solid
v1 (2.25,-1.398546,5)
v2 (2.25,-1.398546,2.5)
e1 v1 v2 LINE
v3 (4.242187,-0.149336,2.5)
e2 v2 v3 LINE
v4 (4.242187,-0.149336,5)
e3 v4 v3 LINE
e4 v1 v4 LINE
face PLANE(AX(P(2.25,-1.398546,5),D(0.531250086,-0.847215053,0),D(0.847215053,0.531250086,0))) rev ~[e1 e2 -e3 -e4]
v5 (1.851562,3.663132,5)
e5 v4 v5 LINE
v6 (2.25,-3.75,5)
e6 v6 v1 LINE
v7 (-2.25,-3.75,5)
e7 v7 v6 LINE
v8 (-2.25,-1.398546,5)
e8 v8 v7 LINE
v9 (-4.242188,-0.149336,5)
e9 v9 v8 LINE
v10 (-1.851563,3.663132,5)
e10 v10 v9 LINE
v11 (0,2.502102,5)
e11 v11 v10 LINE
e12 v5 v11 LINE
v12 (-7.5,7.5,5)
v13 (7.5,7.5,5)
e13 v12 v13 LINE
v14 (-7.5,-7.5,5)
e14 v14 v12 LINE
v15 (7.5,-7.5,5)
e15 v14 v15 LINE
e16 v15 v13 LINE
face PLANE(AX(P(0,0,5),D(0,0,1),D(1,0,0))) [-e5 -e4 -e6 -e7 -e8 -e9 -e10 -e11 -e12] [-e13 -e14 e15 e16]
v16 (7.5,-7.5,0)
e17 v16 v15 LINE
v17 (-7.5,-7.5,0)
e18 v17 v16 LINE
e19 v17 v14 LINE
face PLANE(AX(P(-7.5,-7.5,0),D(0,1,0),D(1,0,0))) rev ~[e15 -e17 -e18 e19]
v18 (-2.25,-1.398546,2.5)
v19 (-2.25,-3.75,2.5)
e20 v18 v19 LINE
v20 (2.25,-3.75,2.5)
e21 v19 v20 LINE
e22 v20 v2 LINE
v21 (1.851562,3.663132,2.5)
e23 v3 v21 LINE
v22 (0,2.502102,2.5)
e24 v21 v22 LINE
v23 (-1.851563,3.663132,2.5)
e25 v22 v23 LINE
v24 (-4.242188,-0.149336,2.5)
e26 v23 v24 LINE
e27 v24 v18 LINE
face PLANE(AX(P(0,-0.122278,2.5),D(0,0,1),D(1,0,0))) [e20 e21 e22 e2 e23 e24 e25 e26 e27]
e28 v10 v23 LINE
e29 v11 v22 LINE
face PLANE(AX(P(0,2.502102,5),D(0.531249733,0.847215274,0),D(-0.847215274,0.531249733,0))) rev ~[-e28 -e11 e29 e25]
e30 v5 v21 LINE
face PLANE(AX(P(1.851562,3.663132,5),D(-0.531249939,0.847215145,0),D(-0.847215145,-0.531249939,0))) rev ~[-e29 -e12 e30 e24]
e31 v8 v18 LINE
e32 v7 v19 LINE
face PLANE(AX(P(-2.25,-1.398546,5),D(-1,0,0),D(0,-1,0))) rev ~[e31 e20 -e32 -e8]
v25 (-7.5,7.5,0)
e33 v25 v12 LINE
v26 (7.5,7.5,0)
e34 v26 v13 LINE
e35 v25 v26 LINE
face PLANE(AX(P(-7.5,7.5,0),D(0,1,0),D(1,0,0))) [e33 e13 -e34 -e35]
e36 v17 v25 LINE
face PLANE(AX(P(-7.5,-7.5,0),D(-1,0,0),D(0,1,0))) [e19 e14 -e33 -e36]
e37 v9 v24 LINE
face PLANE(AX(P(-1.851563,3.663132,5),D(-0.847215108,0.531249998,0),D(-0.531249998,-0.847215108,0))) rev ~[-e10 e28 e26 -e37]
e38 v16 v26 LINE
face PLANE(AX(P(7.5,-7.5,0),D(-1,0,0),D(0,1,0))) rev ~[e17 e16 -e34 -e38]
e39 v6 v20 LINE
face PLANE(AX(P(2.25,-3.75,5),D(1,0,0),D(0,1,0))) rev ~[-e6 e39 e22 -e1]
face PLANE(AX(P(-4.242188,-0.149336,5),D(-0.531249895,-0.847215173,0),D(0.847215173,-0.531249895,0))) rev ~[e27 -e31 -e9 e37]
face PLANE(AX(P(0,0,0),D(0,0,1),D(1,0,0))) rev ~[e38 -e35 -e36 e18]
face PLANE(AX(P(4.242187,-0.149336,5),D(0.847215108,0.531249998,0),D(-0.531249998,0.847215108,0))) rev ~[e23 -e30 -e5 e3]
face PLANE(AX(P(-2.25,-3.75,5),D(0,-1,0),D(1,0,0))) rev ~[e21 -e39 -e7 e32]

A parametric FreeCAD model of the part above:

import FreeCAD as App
import Part
import Sketcher
Q = App.Units.Quantity

doc = App.newDocument("Part")
body = doc.addObject("PartDesign::Body", "Body")

sketch1 = body.newObject("Sketcher::SketchObject", "Sketch")
sketch1.AttachmentSupport = (doc.getObject("XY_Plane"), [""])
sketch1.MapMode = "FlatFace"
sketch1.addGeometry(Part.LineSegment(App.Vector(-7.5, 7.5, 0), App.Vector(-7.5, -7.5, 0)), False)
sketch1.addGeometry(Part.LineSegment(App.Vector(-7.5, -7.5, 0), App.Vector(7.5, -7.5, 0)), False)
sketch1.addGeometry(Part.LineSegment(App.Vector(7.5, -7.5, 0), App.Vector(7.5, 7.5, 0)), False)
sketch1.addGeometry(Part.LineSegment(App.Vector(7.5, 7.5, 0), App.Vector(-7.5, 7.5, 0)), False)
sketch1.addConstraint(Sketcher.Constraint("Coincident", 0, 2, 1, 1))
sketch1.addConstraint(Sketcher.Constraint("Coincident", 1, 2, 2, 1))
sketch1.addConstraint(Sketcher.Constraint("Coincident", 2, 2, 3, 1))
sketch1.addConstraint(Sketcher.Constraint("Coincident", 3, 2, 0, 1))
sketch1.addConstraint(Sketcher.Constraint("Vertical", 0))
sketch1.addConstraint(Sketcher.Constraint("Horizontal", 1))
sketch1.addConstraint(Sketcher.Constraint("Vertical", 2))
sketch1.addConstraint(Sketcher.Constraint("Horizontal", 3))
sketch1.addConstraint(Sketcher.Constraint("Symmetric", 0, 2, 2, 2, -1, 1))
sketch1.addConstraint(Sketcher.Constraint("Equal", 3, 0))
sketch1.addConstraint(Sketcher.Constraint("DistanceX", 1, 1, 1, 2, Q("15 mm")))
pad1 = body.newObject("PartDesign::Pad", "Pad")
pad1.Profile = sketch1
pad1.Length = 5

sketch2 = body.newObject("Sketcher::SketchObject", "Sketch001")
sketch2.AttachmentSupport = (doc.getObject("XY_Plane"), [""])
sketch2.MapMode = "FlatFace"
sketch2.AttachmentOffset = App.Placement(App.Vector(0, 0, 5), App.Rotation())
sketch2.addGeometry(Part.LineSegment(App.Vector(0, 2.502102, 0), App.Vector(-1.851563, 3.663132, 0)), False)
sketch2.addGeometry(Part.LineSegment(App.Vector(-1.851563, 3.663132, 0), App.Vector(-4.242188, -0.149336, 0)), False)
sketch2.addGeometry(Part.LineSegment(App.Vector(-4.242188, -0.149336, 0), App.Vector(-2.25, -1.398546, 0)), False)
sketch2.addGeometry(Part.LineSegment(App.Vector(-2.25, -1.398546, 0), App.Vector(-2.25, -3.75, 0)), False)
sketch2.addGeometry(Part.LineSegment(App.Vector(-2.25, -3.75, 0), App.Vector(2.25, -3.75, 0)), False)
sketch2.addGeometry(Part.LineSegment(App.Vector(2.25, -3.75, 0), App.Vector(2.25, -1.398546, 0)), False)
sketch2.addGeometry(Part.LineSegment(App.Vector(2.25, -1.398546, 0), App.Vector(4.242187, -0.149336, 0)), False)
sketch2.addGeometry(Part.LineSegment(App.Vector(4.242187, -0.149336, 0), App.Vector(1.851562, 3.663132, 0)), False)
sketch2.addGeometry(Part.LineSegment(App.Vector(1.851562, 3.663132, 0), App.Vector(0, 2.502102, 0)), False)
sketch2.addConstraint(Sketcher.Constraint("Coincident", 0, 2, 1, 1))
sketch2.addConstraint(Sketcher.Constraint("Coincident", 1, 2, 2, 1))
sketch2.addConstraint(Sketcher.Constraint("Coincident", 2, 2, 3, 1))
sketch2.addConstraint(Sketcher.Constraint("Coincident", 3, 2, 4, 1))
sketch2.addConstraint(Sketcher.Constraint("Coincident", 4, 2, 5, 1))
sketch2.addConstraint(Sketcher.Constraint("Coincident", 5, 2, 6, 1))
sketch2.addConstraint(Sketcher.Constraint("Coincident", 6, 2, 7, 1))
sketch2.addConstraint(Sketcher.Constraint("Coincident", 7, 2, 8, 1))
sketch2.addConstraint(Sketcher.Constraint("Coincident", 8, 2, 0, 1))
sketch2.addConstraint(Sketcher.Constraint("Vertical", 3))
sketch2.addConstraint(Sketcher.Constraint("Horizontal", 4))
sketch2.addConstraint(Sketcher.Constraint("Vertical", 5))
sketch2.addConstraint(Sketcher.Constraint("Symmetric", 2, 2, 5, 2, -2))
sketch2.addConstraint(Sketcher.Constraint("Symmetric", 1, 2, 6, 2, -2))
sketch2.addConstraint(Sketcher.Constraint("Symmetric", 0, 2, 7, 2, -2))
sketch2.addConstraint(Sketcher.Constraint("PointOnObject", 8, 2, -2))
sketch2.addConstraint(Sketcher.Constraint("Perpendicular", 0, 1))
sketch2.addConstraint(Sketcher.Constraint("Perpendicular", 1, 2))
sketch2.addConstraint(Sketcher.Constraint("DistanceX", 4, 1, 4, 2, Q("4.5 mm")))
sketch2.addConstraint(Sketcher.Constraint("Distance", 1, Q("4.5 mm")))
sketch2.addConstraint(Sketcher.Constraint("DistanceY", 3, 2, -1, 1, Q("3.75 mm")))
sketch2.addConstraint(Sketcher.Constraint("DistanceY", -1, 1, 8, 2, Q("2.502102 mm")))
sketch2.addConstraint(Sketcher.Constraint("Distance", 0, Q("2.185469 mm")))
sketch2.addConstraint(Sketcher.Constraint("DistanceY", 3, 2, 3, 1, Q("2.351454 mm")))
pocket1 = body.newObject("PartDesign::Pocket", "Pocket")
pocket1.Profile = sketch2
pocket1.Length = 2.5

doc.recompute()
